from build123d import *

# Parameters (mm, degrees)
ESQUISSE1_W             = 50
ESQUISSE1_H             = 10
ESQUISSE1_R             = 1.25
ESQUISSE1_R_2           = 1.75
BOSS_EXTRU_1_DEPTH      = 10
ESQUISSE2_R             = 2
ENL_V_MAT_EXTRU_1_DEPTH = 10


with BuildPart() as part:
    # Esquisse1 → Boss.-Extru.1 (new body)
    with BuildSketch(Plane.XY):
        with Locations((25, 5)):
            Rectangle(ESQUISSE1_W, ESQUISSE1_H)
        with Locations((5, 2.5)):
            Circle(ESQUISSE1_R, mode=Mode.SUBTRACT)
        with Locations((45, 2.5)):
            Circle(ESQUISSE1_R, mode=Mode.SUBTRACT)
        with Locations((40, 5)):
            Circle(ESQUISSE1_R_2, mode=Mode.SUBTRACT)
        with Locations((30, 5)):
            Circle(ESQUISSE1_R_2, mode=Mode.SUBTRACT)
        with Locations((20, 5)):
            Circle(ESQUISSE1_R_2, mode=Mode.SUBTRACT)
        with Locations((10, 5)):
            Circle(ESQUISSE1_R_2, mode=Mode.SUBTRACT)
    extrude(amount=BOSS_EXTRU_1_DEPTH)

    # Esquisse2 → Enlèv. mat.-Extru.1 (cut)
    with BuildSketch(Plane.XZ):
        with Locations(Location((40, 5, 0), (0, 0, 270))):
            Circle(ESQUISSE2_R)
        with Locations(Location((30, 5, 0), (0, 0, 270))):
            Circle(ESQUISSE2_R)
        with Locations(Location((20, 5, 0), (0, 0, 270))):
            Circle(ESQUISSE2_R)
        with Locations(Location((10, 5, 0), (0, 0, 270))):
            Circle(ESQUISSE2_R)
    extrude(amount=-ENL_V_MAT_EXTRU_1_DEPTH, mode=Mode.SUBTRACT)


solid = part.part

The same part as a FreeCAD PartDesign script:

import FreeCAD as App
import Part
import Sketcher

V = App.Vector

doc = App.newDocument("Part")
body = doc.addObject("PartDesign::Body", "Body")

# Sketch on XY plane
sketch1 = doc.addObject("Sketcher::SketchObject", "Sketch")
body.addObject(sketch1)
sketch1.AttachmentSupport = (doc.XY_Plane, [""])
sketch1.MapMode = "FlatFace"
sketch1.addGeometry(Part.LineSegment(V(0, 10, 0), V(0, 0, 0)), False)
sketch1.addGeometry(Part.LineSegment(V(0, 0, 0), V(50, 0, 0)), False)
sketch1.addGeometry(Part.LineSegment(V(50, 0, 0), V(50, 10, 0)), False)
sketch1.addGeometry(Part.LineSegment(V(50, 10, 0), V(0, 10, 0)), False)
sketch1.addGeometry(Part.Circle(V(5, 2.5, 0), V(0, 0, 1), 1.2), False)
sketch1.addGeometry(Part.Circle(V(45, 2.5, 0), V(0, 0, 1), 1.2), False)
sketch1.addGeometry(Part.Circle(V(10, 5, 0), V(0, 0, 1), 1.8), False)
sketch1.addGeometry(Part.Circle(V(20, 5, 0), V(0, 0, 1), 1.8), False)
sketch1.addGeometry(Part.Circle(V(30, 5, 0), V(0, 0, 1), 1.8), False)
sketch1.addGeometry(Part.Circle(V(40, 5, 0), V(0, 0, 1), 1.8), False)
sketch1.addConstraint(Sketcher.Constraint("Coincident", 0, 2, 1, 1))
sketch1.addConstraint(Sketcher.Constraint("Coincident", 1, 2, 2, 1))
sketch1.addConstraint(Sketcher.Constraint("Coincident", 2, 2, 3, 1))
sketch1.addConstraint(Sketcher.Constraint("Coincident", 3, 2, 0, 1))
sketch1.addConstraint(Sketcher.Constraint("Vertical", 0))
sketch1.addConstraint(Sketcher.Constraint("Horizontal", 1))
sketch1.addConstraint(Sketcher.Constraint("Vertical", 2))
sketch1.addConstraint(Sketcher.Constraint("Horizontal", 3))
sketch1.addConstraint(Sketcher.Constraint("Coincident", 0, 2, -1, 1))
sketch1.addConstraint(Sketcher.Constraint("Equal", 4, 5))
sketch1.addConstraint(Sketcher.Constraint("Equal", 6, 7))
sketch1.addConstraint(Sketcher.Constraint("Equal", 7, 8))
sketch1.addConstraint(Sketcher.Constraint("Equal", 8, 9))
sketch1.addConstraint(Sketcher.Constraint("Horizontal", 4, 3, 5, 3))
sketch1.addConstraint(Sketcher.Constraint("Horizontal", 6, 3, 7, 3))
sketch1.addConstraint(Sketcher.Constraint("Horizontal", 7, 3, 8, 3))
sketch1.addConstraint(Sketcher.Constraint("Horizontal", 8, 3, 9, 3))
sketch1.addConstraint(Sketcher.Constraint("Diameter", 4, 2.5))
sketch1.addConstraint(Sketcher.Constraint("Diameter", 6, 3.5))
sketch1.addConstraint(Sketcher.Constraint("DistanceX", 1, 1, 1, 2, 50.0))
sketch1.addConstraint(Sketcher.Constraint("DistanceY", 0, 2, 0, 1, 10.0))
sketch1.addConstraint(Sketcher.Constraint("DistanceX", -1, 1, 4, 3, 5.0))
sketch1.addConstraint(Sketcher.Constraint("DistanceX", -1, 1, 5, 3, 45.0))
sketch1.addConstraint(Sketcher.Constraint("DistanceX", -1, 1, 6, 3, 10.0))
sketch1.addConstraint(Sketcher.Constraint("DistanceY", -1, 1, 6, 3, 5.0))
sketch1.addConstraint(Sketcher.Constraint("DistanceX", -1, 1, 7, 3, 20.0))
sketch1.addConstraint(Sketcher.Constraint("DistanceX", -1, 1, 8, 3, 30.0))
sketch1.addConstraint(Sketcher.Constraint("DistanceX", -1, 1, 9, 3, 40.0))
sketch1.addConstraint(Sketcher.Constraint("DistanceY", -1, 1, 4, 3, 2.5))
pad1 = doc.addObject("PartDesign::Pad", "Pad")
body.addObject(pad1)
pad1.Profile = sketch1
pad1.Length = 10

# Sketch on XZ plane
sketch2 = doc.addObject("Sketcher::SketchObject", "Sketch001")
body.addObject(sketch2)
sketch2.AttachmentSupport = (doc.XZ_Plane, [""])
sketch2.MapMode = "FlatFace"
sketch2.addGeometry(Part.Circle(V(40, 5, 0), V(0, 0, 1), 2), False)
sketch2.addGeometry(Part.Circle(V(30, 5, 0), V(0, 0, 1), 2), False)
sketch2.addGeometry(Part.Circle(V(20, 5, 0), V(0, 0, 1), 2), False)
sketch2.addGeometry(Part.Circle(V(10, 5, 0), V(0, 0, 1), 2), False)
sketch2.addConstraint(Sketcher.Constraint("Equal", 0, 1))
sketch2.addConstraint(Sketcher.Constraint("Equal", 1, 2))
sketch2.addConstraint(Sketcher.Constraint("Equal", 2, 3))
sketch2.addConstraint(Sketcher.Constraint("Horizontal", 0, 3, 1, 3))
sketch2.addConstraint(Sketcher.Constraint("Horizontal", 1, 3, 2, 3))
sketch2.addConstraint(Sketcher.Constraint("Horizontal", 2, 3, 3, 3))
sketch2.addConstraint(Sketcher.Constraint("Diameter", 0, 4.0))
sketch2.addConstraint(Sketcher.Constraint("DistanceX", -1, 1, 0, 3, 40.0))
sketch2.addConstraint(Sketcher.Constraint("DistanceY", -1, 1, 0, 3, 5.0))
sketch2.addConstraint(Sketcher.Constraint("DistanceX", -1, 1, 1, 3, 30.0))
sketch2.addConstraint(Sketcher.Constraint("DistanceX", -1, 1, 2, 3, 20.0))
sketch2.addConstraint(Sketcher.Constraint("DistanceX", -1, 1, 3, 3, 10.0))
pocket1 = doc.addObject("PartDesign::Pocket", "Pocket")
body.addObject(pocket1)
pocket1.Profile = sketch2
pocket1.Length = 10

doc.recompute()
